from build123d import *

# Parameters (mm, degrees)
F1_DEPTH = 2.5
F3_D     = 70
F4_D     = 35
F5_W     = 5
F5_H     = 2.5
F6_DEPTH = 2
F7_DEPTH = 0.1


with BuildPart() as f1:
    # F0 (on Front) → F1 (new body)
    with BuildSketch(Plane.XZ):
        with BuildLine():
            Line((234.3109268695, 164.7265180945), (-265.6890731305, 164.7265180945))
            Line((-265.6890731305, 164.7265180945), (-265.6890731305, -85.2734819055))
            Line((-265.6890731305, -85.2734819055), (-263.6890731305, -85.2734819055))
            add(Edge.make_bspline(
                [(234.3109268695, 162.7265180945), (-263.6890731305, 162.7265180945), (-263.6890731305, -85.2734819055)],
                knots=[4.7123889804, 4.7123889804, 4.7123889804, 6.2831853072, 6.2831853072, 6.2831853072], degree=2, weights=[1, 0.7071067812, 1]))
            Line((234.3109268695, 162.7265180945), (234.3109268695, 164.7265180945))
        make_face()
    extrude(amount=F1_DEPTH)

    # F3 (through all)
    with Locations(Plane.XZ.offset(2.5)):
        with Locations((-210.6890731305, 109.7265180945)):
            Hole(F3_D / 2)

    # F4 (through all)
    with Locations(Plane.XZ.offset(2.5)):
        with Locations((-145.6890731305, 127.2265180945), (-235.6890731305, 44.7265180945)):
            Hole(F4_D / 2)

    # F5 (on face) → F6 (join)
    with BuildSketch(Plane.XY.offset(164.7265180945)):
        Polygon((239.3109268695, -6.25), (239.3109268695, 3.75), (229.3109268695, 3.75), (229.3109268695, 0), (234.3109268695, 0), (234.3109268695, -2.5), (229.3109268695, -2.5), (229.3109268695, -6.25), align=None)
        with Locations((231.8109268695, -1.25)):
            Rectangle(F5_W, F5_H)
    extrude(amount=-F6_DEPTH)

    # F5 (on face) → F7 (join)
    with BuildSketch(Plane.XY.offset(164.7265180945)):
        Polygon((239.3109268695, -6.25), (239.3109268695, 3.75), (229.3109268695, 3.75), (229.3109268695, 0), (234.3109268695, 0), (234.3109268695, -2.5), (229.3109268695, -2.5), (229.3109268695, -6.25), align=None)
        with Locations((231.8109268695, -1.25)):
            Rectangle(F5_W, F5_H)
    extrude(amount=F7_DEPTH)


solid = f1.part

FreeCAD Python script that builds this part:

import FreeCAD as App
import Part
import Sketcher

doc = App.newDocument("Part")
body = doc.addObject("PartDesign::Body", "Body")

# Sketch on XZ plane
sketch1 = body.newObject("Sketcher::SketchObject", "Sketch")
sketch1.AttachmentSupport = (doc.getObject("XZ_Plane"), [""])
sketch1.MapMode = "FlatFace"
sketch1.addGeometry([
    Part.LineSegment(App.Vector(234.310927, 164.726518, 0), App.Vector(-265.689073, 164.726518, 0)),  # 0
    Part.LineSegment(App.Vector(-265.689073, 164.726518, 0), App.Vector(-265.689073, -85.273482, 0)),  # 1
    Part.LineSegment(App.Vector(-265.689073, -85.273482, 0), App.Vector(-263.689073, -85.273482, 0)),  # 2
    Part.BSplineCurve([App.Vector(234.310927, 162.726518, 0), App.Vector(-263.689073, 162.726518, 0), App.Vector(-263.689073, -85.273482, 0)], [3, 3], [4.71238898, 6.283185307], False, 2, [1, 0.707106781, 1], False),  # 3
    Part.LineSegment(App.Vector(234.310927, 162.726518, 0), App.Vector(234.310927, 164.726518, 0)),  # 4
], False)
sketch1.addConstraint([
    Sketcher.Constraint("Block", 3),
    Sketcher.Constraint("Coincident", 0, 2, 1, 1),
    Sketcher.Constraint("Coincident", 1, 2, 2, 1),
    Sketcher.Constraint("Coincident", 2, 2, 3, 2),
    Sketcher.Constraint("Coincident", 3, 1, 4, 1),
    Sketcher.Constraint("Coincident", 4, 2, 0, 1),
    Sketcher.Constraint("Horizontal", 0),
    Sketcher.Constraint("Vertical", 1),
    Sketcher.Constraint("Horizontal", 2),
    Sketcher.Constraint("Vertical", 4),
    Sketcher.Constraint("DistanceX", 0, 2, 0, 1, 500.0),
    Sketcher.Constraint("DistanceY", 1, 2, 1, 1, 250.0),
])
pad1 = body.newObject("PartDesign::Pad", "Pad")
pad1.Profile = sketch1
pad1.Length = 2.5

# Sketch on XZ plane
sketch2 = body.newObject("Sketcher::SketchObject", "Sketch001")
sketch2.AttachmentSupport = (doc.getObject("XZ_Plane"), [""])
sketch2.MapMode = "FlatFace"
sketch2.AttachmentOffset = App.Placement(App.Vector(0, 0, 2.5), App.Rotation())
sketch2.addGeometry(Part.Circle(App.Vector(-210.689073, 109.726518, 0), App.Vector(0, 0, 1), 35), False)
sketch2.addConstraint([
    Sketcher.Constraint("Diameter", 0, 70.0),
    Sketcher.Constraint("DistanceY", -1, 1, 0, 3, 109.726518),
    Sketcher.Constraint("DistanceX", 0, 3, -1, 1, 210.689073),
])
doc.recompute()
hole = body.newObject("PartDesign::Hole", "Hole")
hole.Profile = sketch2
hole.ThreadType = "None"
hole.Diameter = 70
hole.DepthType = "ThroughAll"

# Sketch on XZ plane
sketch3 = body.newObject("Sketcher::SketchObject", "Sketch002")
sketch3.AttachmentSupport = (doc.getObject("XZ_Plane"), [""])
sketch3.MapMode = "FlatFace"
sketch3.AttachmentOffset = App.Placement(App.Vector(0, 0, 2.5), App.Rotation())
sketch3.addGeometry([
    Part.Circle(App.Vector(-145.689073, 127.226518, 0), App.Vector(0, 0, 1), 17.5),
    Part.Circle(App.Vector(-235.689073, 44.726518, 0), App.Vector(0, 0, 1), 17.5),
], False)
sketch3.addConstraint([
    Sketcher.Constraint("Equal", 0, 1),
    Sketcher.Constraint("Diameter", 0, 35.0),
    Sketcher.Constraint("DistanceX", 1, 3, 0, 3, 90.0),
    Sketcher.Constraint("DistanceY", 1, 3, 0, 3, 82.5),
    Sketcher.Constraint("DistanceY", -1, 1, 0, 3, 127.226518),
    Sketcher.Constraint("DistanceX", 0, 3, -1, 1, 145.689073),
])
doc.recompute()
hole2 = body.newObject("PartDesign::Hole", "Hole001")
hole2.Profile = sketch3
hole2.ThreadType = "None"
hole2.Diameter = 35
hole2.DepthType = "ThroughAll"

# Sketch on XY plane
sketch4 = body.newObject("Sketcher::SketchObject", "Sketch003")
sketch4.AttachmentSupport = (doc.getObject("XY_Plane"), [""])
sketch4.MapMode = "FlatFace"
sketch4.AttachmentOffset = App.Placement(App.Vector(0, 0, 164.726518), App.Rotation())
sketch4.addGeometry([
    Part.LineSegment(App.Vector(239.310927, -6.25, 0), App.Vector(239.310927, 3.75, 0)),
    Part.LineSegment(App.Vector(239.310927, 3.75, 0), App.Vector(229.310927, 3.75, 0)),
    Part.LineSegment(App.Vector(229.310927, 3.75, 0), App.Vector(229.310927, -6.25, 0)),
    Part.LineSegment(App.Vector(229.310927, -6.25, 0), App.Vector(239.310927, -6.25, 0)),
], False)
sketch4.addConstraint([
    Sketcher.Constraint("Coincident", 0, 2, 1, 1),
    Sketcher.Constraint("Coincident", 1, 2, 2, 1),
    Sketcher.Constraint("Coincident", 2, 2, 3, 1),
    Sketcher.Constraint("Coincident", 3, 2, 0, 1),
    Sketcher.Constraint("Vertical", 0),
    Sketcher.Constraint("Horizontal", 1),
    Sketcher.Constraint("Vertical", 2),
    Sketcher.Constraint("Horizontal", 3),
    Sketcher.Constraint("Equal", 3, 0),
    Sketcher.Constraint("DistanceX", 1, 2, 1, 1, 10.0),
    Sketcher.Constraint("DistanceY", -1, 1, 0, 2, 3.75),
    Sketcher.Constraint("DistanceX", -1, 1, 0, 2, 239.310927),
])
pad2 = body.newObject("PartDesign::Pad", "Pad001")
pad2.Profile = sketch4
pad2.Length = 2
pad2.Reversed = True

# Sketch on XY plane
sketch5 = body.newObject("Sketcher::SketchObject", "Sketch004")
sketch5.AttachmentSupport = (doc.getObject("XY_Plane"), [""])
sketch5.MapMode = "FlatFace"
sketch5.AttachmentOffset = App.Placement(App.Vector(0, 0, 164.726518), App.Rotation())
sketch5.addGeometry([
    Part.LineSegment(App.Vector(239.310927, -6.25, 0), App.Vector(239.310927, 3.75, 0)),
    Part.LineSegment(App.Vector(239.310927, 3.75, 0), App.Vector(229.310927, 3.75, 0)),
    Part.LineSegment(App.Vector(229.310927, 3.75, 0), App.Vector(229.310927, -6.25, 0)),
    Part.LineSegment(App.Vector(229.310927, -6.25, 0), App.Vector(239.310927, -6.25, 0)),
], False)
sketch5.addConstraint([
    Sketcher.Constraint("Coincident", 0, 2, 1, 1),
    Sketcher.Constraint("Coincident", 1, 2, 2, 1),
    Sketcher.Constraint("Coincident", 2, 2, 3, 1),
    Sketcher.Constraint("Coincident", 3, 2, 0, 1),
    Sketcher.Constraint("Vertical", 0),
    Sketcher.Constraint("Horizontal", 1),
    Sketcher.Constraint("Vertical", 2),
    Sketcher.Constraint("Horizontal", 3),
    Sketcher.Constraint("Equal", 3, 0),
    Sketcher.Constraint("DistanceX", 1, 2, 1, 1, 10.0),
    Sketcher.Constraint("DistanceY", -1, 1, 0, 2, 3.75),
    Sketcher.Constraint("DistanceX", -1, 1, 0, 2, 239.310927),
])
pad3 = body.newObject("PartDesign::Pad", "Pad002")
pad3.Profile = sketch5
pad3.Length = 0.1

doc.recompute()
